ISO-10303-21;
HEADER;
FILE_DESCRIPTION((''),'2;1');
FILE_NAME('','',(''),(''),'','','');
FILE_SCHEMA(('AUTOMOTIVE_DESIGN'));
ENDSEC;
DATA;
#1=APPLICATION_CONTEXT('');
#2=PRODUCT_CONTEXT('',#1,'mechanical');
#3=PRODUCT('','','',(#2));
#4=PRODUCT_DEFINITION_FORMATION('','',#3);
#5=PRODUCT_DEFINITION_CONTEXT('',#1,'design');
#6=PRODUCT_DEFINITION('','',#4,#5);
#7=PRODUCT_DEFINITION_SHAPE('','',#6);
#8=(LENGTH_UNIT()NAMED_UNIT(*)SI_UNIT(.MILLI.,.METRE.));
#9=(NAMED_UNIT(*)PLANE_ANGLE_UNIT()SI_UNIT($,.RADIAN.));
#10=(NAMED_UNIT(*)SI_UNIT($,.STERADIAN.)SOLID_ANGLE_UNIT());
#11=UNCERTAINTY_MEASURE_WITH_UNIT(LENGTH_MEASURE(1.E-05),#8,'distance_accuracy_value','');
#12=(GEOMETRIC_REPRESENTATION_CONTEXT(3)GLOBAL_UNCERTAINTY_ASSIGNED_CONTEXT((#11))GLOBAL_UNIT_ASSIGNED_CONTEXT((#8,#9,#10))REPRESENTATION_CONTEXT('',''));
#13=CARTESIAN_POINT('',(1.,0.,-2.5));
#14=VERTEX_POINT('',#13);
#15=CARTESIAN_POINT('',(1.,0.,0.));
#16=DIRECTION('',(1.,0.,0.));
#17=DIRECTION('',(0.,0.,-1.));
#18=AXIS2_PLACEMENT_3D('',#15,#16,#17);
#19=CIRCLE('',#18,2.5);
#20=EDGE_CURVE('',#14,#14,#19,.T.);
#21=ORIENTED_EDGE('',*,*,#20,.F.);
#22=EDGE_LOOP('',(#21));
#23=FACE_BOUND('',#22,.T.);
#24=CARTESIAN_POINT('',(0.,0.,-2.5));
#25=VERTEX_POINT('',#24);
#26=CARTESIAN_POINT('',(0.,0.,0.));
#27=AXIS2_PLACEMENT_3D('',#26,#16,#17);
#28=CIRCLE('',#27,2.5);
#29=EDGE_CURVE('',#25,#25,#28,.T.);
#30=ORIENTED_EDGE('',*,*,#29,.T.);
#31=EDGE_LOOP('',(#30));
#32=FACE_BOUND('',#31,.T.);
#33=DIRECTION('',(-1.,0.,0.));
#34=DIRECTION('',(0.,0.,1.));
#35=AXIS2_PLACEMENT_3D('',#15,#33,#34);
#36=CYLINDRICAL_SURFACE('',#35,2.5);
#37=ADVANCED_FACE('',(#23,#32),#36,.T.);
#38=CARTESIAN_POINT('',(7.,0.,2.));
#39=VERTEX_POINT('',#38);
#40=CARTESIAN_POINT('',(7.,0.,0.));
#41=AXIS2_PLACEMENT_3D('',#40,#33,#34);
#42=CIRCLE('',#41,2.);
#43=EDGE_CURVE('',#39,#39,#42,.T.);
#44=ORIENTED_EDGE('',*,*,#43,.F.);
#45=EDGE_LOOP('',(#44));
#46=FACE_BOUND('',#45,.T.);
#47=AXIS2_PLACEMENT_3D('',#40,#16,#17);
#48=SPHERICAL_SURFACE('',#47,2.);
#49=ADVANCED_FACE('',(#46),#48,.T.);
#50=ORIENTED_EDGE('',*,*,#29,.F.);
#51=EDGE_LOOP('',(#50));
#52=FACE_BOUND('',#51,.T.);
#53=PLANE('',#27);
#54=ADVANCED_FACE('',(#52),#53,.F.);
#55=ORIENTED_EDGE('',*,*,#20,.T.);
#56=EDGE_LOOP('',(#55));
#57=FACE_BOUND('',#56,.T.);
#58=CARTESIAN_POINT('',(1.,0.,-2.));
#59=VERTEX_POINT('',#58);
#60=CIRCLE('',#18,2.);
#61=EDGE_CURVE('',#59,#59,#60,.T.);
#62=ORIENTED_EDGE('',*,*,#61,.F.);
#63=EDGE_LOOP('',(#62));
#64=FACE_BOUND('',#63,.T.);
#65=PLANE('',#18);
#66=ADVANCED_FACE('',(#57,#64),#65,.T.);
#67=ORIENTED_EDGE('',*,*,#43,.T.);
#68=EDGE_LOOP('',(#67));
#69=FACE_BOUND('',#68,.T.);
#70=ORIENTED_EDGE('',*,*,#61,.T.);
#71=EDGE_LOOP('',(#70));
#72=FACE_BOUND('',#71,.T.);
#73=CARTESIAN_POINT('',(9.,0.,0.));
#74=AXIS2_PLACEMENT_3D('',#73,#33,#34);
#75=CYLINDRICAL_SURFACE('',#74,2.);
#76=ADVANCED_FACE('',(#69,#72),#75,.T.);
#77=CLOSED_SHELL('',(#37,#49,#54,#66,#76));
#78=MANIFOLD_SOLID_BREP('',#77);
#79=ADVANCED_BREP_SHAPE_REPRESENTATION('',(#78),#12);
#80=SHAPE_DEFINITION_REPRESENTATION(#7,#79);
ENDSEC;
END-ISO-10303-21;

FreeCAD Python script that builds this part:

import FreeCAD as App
import Part
import Sketcher

V = App.Vector


def edges_at(feature, points):
    """Names of the edges that pass closest to the given points."""
    edges = feature.Shape.Edges
    near = lambda p: min(range(len(edges)), key=lambda i: edges[i].distToShape(Part.Vertex(*p))[0])
    return sorted({f"Edge{near(p) + 1}" for p in points})

doc = App.newDocument("Part")
body = doc.addObject("PartDesign::Body", "Body")

# Sketch on YZ plane
sketch1 = doc.addObject("Sketcher::SketchObject", "Sketch")
body.addObject(sketch1)
sketch1.AttachmentSupport = (doc.YZ_Plane, [""])
sketch1.MapMode = "FlatFace"
sketch1.addGeometry(Part.Circle(V(0, 0, 0), V(0, 0, 1), 2.5), False)
sketch1.addConstraint([
    Sketcher.Constraint("Coincident", 0, 3, -1, 1),
    Sketcher.Constraint("Diameter", 0, 5.0),
])
pad1 = doc.addObject("PartDesign::Pad", "Pad")
body.addObject(pad1)
pad1.Profile = sketch1
pad1.Length = 1

# Sketch on YZ plane
sketch2 = doc.addObject("Sketcher::SketchObject", "Sketch001")
body.addObject(sketch2)
sketch2.AttachmentSupport = (doc.YZ_Plane, [""])
sketch2.MapMode = "FlatFace"
sketch2.AttachmentOffset = App.Placement(V(0, 0, 1), App.Rotation())
sketch2.addGeometry(Part.Circle(V(0, 0, 0), V(0, 0, 1), 2), False)
sketch2.addConstraint([
    Sketcher.Constraint("Coincident", 0, 3, -1, 1),
    Sketcher.Constraint("Diameter", 0, 4.0),
])
pad2 = doc.addObject("PartDesign::Pad", "Pad001")
body.addObject(pad2)
pad2.Profile = sketch2
pad2.Length = 8
doc.recompute()

fillet = doc.addObject("PartDesign::Fillet", "Fillet")
body.addObject(fillet)
fillet.Base = (pad2, edges_at(pad2, [(9, 0, 2)]))
fillet.Radius = 2

doc.recompute()
